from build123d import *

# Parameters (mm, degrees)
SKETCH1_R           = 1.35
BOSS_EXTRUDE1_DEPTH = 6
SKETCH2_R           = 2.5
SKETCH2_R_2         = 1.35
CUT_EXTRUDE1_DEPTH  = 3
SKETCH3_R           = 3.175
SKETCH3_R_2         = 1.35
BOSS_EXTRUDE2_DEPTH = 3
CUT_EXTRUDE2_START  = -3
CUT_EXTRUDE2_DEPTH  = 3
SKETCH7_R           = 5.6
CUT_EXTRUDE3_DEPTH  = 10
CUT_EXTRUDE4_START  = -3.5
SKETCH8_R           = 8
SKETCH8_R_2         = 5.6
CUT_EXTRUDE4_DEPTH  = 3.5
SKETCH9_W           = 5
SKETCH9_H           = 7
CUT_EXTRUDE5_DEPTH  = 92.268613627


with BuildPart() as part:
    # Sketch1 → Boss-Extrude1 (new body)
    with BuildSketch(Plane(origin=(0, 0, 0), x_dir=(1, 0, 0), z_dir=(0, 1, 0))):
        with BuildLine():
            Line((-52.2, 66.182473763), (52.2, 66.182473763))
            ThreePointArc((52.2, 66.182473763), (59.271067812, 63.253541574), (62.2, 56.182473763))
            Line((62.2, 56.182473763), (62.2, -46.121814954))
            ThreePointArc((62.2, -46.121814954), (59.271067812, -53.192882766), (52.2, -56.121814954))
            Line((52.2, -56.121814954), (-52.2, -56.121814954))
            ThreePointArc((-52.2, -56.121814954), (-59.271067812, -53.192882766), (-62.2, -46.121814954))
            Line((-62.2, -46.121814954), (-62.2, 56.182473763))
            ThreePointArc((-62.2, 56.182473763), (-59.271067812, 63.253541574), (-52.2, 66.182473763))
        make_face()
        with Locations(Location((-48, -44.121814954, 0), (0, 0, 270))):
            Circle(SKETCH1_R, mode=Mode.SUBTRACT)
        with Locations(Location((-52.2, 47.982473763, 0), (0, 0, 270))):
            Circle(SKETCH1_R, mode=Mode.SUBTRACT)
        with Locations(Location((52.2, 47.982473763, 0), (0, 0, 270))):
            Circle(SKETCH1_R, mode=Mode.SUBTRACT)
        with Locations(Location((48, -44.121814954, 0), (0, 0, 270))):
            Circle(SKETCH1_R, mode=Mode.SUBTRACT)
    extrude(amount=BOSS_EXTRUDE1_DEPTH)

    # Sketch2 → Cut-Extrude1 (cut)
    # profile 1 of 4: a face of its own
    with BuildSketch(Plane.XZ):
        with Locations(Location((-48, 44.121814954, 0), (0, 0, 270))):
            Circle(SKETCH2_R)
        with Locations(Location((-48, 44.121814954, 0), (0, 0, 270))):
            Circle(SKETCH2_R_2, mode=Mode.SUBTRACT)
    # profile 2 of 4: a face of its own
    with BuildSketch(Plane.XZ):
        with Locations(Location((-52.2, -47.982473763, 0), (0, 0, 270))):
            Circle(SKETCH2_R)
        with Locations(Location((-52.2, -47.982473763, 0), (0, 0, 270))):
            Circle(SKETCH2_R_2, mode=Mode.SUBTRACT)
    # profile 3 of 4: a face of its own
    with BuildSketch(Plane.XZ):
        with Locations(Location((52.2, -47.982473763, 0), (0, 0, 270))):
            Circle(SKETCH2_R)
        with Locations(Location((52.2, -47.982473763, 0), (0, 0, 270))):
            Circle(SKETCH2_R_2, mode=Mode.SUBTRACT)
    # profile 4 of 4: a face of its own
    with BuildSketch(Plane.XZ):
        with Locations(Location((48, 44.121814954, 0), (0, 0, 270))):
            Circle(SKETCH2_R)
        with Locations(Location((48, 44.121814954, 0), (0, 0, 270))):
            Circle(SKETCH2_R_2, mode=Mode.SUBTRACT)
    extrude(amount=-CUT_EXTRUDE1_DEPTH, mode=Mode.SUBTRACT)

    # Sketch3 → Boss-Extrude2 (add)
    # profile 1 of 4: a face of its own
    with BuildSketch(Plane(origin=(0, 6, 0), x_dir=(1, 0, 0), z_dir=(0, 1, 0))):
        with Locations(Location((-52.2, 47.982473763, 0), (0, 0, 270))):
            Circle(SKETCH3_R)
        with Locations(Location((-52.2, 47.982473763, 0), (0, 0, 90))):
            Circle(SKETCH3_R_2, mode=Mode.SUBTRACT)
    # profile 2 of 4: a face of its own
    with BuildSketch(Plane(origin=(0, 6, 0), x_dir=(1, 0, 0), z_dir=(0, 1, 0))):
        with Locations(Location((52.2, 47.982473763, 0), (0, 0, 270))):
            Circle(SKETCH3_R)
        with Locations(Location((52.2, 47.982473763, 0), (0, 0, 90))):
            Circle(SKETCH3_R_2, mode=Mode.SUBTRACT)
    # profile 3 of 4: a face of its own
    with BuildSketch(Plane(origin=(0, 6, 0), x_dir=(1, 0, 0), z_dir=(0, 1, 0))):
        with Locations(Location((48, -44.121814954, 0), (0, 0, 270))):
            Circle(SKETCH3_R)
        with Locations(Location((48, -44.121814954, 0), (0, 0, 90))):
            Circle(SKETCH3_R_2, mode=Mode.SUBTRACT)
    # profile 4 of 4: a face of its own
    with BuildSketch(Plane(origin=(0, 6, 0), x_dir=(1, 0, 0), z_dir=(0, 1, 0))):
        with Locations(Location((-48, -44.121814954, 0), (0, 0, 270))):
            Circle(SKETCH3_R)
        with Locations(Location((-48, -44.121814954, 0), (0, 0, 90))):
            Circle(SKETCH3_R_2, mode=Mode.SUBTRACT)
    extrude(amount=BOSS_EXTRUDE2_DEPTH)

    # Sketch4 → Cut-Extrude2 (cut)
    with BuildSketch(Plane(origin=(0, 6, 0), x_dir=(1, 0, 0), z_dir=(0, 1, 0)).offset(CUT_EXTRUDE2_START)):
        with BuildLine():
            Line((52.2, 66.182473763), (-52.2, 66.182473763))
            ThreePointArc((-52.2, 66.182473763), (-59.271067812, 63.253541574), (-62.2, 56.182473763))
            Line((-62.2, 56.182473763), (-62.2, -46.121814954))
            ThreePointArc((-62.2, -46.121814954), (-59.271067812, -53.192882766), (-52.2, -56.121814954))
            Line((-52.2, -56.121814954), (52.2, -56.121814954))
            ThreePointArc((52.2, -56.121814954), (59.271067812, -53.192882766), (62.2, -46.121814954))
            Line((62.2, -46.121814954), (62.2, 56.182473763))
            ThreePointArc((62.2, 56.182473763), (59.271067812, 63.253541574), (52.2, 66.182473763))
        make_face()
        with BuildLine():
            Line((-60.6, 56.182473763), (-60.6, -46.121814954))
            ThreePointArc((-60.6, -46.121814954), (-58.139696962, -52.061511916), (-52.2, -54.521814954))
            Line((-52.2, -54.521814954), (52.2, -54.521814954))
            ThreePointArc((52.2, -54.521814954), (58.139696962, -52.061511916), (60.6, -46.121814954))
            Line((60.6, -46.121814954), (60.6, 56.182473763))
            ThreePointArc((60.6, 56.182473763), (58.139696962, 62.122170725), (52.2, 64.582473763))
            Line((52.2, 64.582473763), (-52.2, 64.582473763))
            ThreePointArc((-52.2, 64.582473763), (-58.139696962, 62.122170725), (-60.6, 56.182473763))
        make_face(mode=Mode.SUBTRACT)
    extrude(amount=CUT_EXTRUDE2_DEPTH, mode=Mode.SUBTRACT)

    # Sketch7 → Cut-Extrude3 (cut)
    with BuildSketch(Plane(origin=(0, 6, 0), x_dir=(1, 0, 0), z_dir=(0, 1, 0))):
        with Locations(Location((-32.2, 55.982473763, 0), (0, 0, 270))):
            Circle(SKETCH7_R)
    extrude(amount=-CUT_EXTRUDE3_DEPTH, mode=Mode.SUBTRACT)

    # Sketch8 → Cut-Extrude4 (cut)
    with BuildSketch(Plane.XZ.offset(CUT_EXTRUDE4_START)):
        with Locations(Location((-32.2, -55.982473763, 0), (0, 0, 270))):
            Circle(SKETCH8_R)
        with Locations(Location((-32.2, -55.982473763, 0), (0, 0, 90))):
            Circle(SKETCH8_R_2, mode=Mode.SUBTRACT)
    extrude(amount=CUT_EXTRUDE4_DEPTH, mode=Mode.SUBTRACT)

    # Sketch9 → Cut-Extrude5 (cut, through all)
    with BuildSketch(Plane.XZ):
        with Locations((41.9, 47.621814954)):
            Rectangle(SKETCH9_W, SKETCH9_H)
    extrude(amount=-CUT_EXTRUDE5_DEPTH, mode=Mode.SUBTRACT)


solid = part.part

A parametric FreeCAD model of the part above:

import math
import FreeCAD as App
import Part
import Sketcher
from FreeCAD import Vector

doc = App.newDocument("Part")
params = doc.addObject("Spreadsheet::Sheet", "Params")
for row, (alias, value) in enumerate([
    ("sketch1_radius", "10 mm"),
    ("sketch1_diameter", "2.7 mm"),
    ("sketch1_width", "104.4 mm"),
    ("pad1_length", "6 mm"),
    ("sketch2_diameter", "5 mm"),
    ("sketch2_diameter2", "2.7 mm"),
    ("pocket1_length", "3 mm"),
    ("sketch3_diameter", "2.7 mm"),
    ("sketch3_diameter2", "6.35 mm"),
    ("pad2_length", "3 mm"),
    ("sketch4_radius", "10 mm"),
    ("sketch4_radius2", "8.4 mm"),
    ("sketch4_width", "104.4 mm"),
    ("pocket2_length", "3 mm"),
    ("sketch5_diameter", "11.2 mm"),
    ("pocket3_length", "10 mm"),
    ("sketch6_diameter", "16 mm"),
    ("sketch6_diameter2", "11.2 mm"),
    ("pocket4_length", "3.5 mm"),
    ("sketch7_width", "5 mm"),
    ("sketch7_height", "7 mm"),
], start=1):
    params.set(f"A{row}", alias)
    params.set(f"B{row}", "=" + value)
    params.setAlias(f"B{row}", alias)

body = doc.addObject("PartDesign::Body", "Body")

sketch1 = body.newObject("Sketcher::SketchObject", "Sketch")
sketch1.AttachmentSupport = (doc.getObject("XZ_Plane"), [""])
sketch1.MapMode = "FlatFace"
sketch1.addGeometry([
    Part.LineSegment(Vector(52.2, -66.182474, 0), Vector(-52.2, -66.182474, 0)),
    Part.ArcOfCircle(Part.Circle(Vector(-52.2, -56.182474, 0), Vector(0, 0, 1), 10), math.radians(-180), math.radians(-90)),
    Part.LineSegment(Vector(-62.2, -56.182474, 0), Vector(-62.2, 46.121815, 0)),
    Part.ArcOfCircle(Part.Circle(Vector(-52.2, 46.121815, 0), Vector(0, 0, 1), 10), math.radians(90), math.radians(180)),
    Part.LineSegment(Vector(-52.2, 56.121815, 0), Vector(52.2, 56.121815, 0)),
    Part.ArcOfCircle(Part.Circle(Vector(52.2, 46.121815, 0), Vector(0, 0, 1), 10), math.radians(0), math.radians(90)),
    Part.LineSegment(Vector(62.2, 46.121815, 0), Vector(62.2, -56.182474, 0)),
    Part.ArcOfCircle(Part.Circle(Vector(52.2, -56.182474, 0), Vector(0, 0, 1), 10), math.radians(-90), math.radians(0)),
    Part.Circle(Vector(48, 44.121815, 0), Vector(0, 0, 1), 1.35),
    Part.Circle(Vector(-48, 44.121815, 0), Vector(0, 0, 1), 1.35),
    Part.Circle(Vector(52.2, -47.982474, 0), Vector(0, 0, 1), 1.35),
    Part.Circle(Vector(-52.2, -47.982474, 0), Vector(0, 0, 1), 1.35),
], False)
sketch1.addConstraint([
    Sketcher.Constraint("Tangent", 0, 2, 1, 2),
    Sketcher.Constraint("Tangent", 1, 1, 2, 1),
    Sketcher.Constraint("Tangent", 2, 2, 3, 2),
    Sketcher.Constraint("Tangent", 3, 1, 4, 1),
    Sketcher.Constraint("Tangent", 4, 2, 5, 2),
    Sketcher.Constraint("Tangent", 5, 1, 6, 1),
    Sketcher.Constraint("Tangent", 6, 2, 7, 2),
    Sketcher.Constraint("Tangent", 7, 1, 0, 1),
    Sketcher.Constraint("Horizontal", 0),
    Sketcher.Constraint("Vertical", 2),
    Sketcher.Constraint("Horizontal", 4),
    Sketcher.Constraint("Vertical", 6),
    Sketcher.Constraint("Equal", 1, 3),
    Sketcher.Constraint("Equal", 3, 5),
    Sketcher.Constraint("Equal", 5, 7),
    Sketcher.Constraint("Equal", 8, 9),
    Sketcher.Constraint("Equal", 9, 10),
    Sketcher.Constraint("Equal", 10, 11),
    Sketcher.Constraint("Symmetric", 8, 3, 9, 3, -2),
    Sketcher.Constraint("Symmetric", 10, 3, 11, 3, -2),
    Sketcher.Constraint("Vertical", 7, 3, 10, 3),
    Sketcher.Constraint("Vertical", 3, 3, 11, 3),
    Sketcher.Constraint("Radius", 1, 10.0),
    Sketcher.Constraint("Diameter", 8, 2.7),
    Sketcher.Constraint("DistanceX", 0, 2, 0, 1, 104.4),
    Sketcher.Constraint("DistanceX", -1, 1, 8, 3, 48.0),
    Sketcher.Constraint("DistanceY", 8, 3, 5, 3, 2.0),
    Sketcher.Constraint("DistanceY", 7, 3, 10, 3, 8.2),
    Sketcher.Constraint("DistanceY", 2, 1, 2, 2, 102.304289),
    Sketcher.Constraint("DistanceY", 1, 3, -1, 1, 56.182474),
])
sketch1.setExpression("Constraints[22]", "Params.sketch1_radius")
sketch1.setExpression("Constraints[23]", "Params.sketch1_diameter")
sketch1.setExpression("Constraints[24]", "Params.sketch1_width")
pad1 = body.newObject("PartDesign::Pad", "Pad")
pad1.Profile = sketch1
pad1.setExpression("Length", "Params.pad1_length")
pad1.Reversed = True

sketch2 = body.newObject("Sketcher::SketchObject", "Sketch001")
sketch2.AttachmentSupport = (doc.getObject("XZ_Plane"), [""])
sketch2.MapMode = "FlatFace"
sketch2.addGeometry([
    Part.Circle(Vector(-48, 44.121815, 0), Vector(0, 0, 1), 2.5),
    Part.Circle(Vector(-48, 44.121815, 0), Vector(0, 0, 1), 1.35),
    Part.Circle(Vector(-52.2, -47.982474, 0), Vector(0, 0, 1), 2.5),
    Part.Circle(Vector(-52.2, -47.982474, 0), Vector(0, 0, 1), 1.35),
    Part.Circle(Vector(52.2, -47.982474, 0), Vector(0, 0, 1), 2.5),
    Part.Circle(Vector(52.2, -47.982474, 0), Vector(0, 0, 1), 1.35),
    Part.Circle(Vector(48, 44.121815, 0), Vector(0, 0, 1), 2.5),
    Part.Circle(Vector(48, 44.121815, 0), Vector(0, 0, 1), 1.35),
], False)
sketch2.addConstraint([
    Sketcher.Constraint("Coincident", 1, 3, 0, 3),
    Sketcher.Constraint("Coincident", 3, 3, 2, 3),
    Sketcher.Constraint("Coincident", 5, 3, 4, 3),
    Sketcher.Constraint("Coincident", 7, 3, 6, 3),
    Sketcher.Constraint("Equal", 0, 2),
    Sketcher.Constraint("Equal", 1, 3),
    Sketcher.Constraint("Equal", 2, 4),
    Sketcher.Constraint("Equal", 3, 5),
    Sketcher.Constraint("Equal", 4, 6),
    Sketcher.Constraint("Equal", 5, 7),
    Sketcher.Constraint("Symmetric", 2, 3, 4, 3, -2),
    Sketcher.Constraint("Symmetric", 0, 3, 6, 3, -2),
    Sketcher.Constraint("Diameter", 0, 5.0),
    Sketcher.Constraint("Diameter", 1, 2.7),
    Sketcher.Constraint("DistanceX", 0, 3, -1, 1, 48.0),
    Sketcher.Constraint("DistanceX", 2, 3, -1, 1, 52.2),
    Sketcher.Constraint("DistanceY", 2, 3, 0, 3, 92.104289),
    Sketcher.Constraint("DistanceY", -1, 1, 0, 3, 44.121815),
])
sketch2.setExpression("Constraints[12]", "Params.sketch2_diameter")
sketch2.setExpression("Constraints[13]", "Params.sketch2_diameter2")
pocket1 = body.newObject("PartDesign::Pocket", "Pocket")
pocket1.Profile = sketch2
pocket1.setExpression("Length", "Params.pocket1_length")

sketch3 = body.newObject("Sketcher::SketchObject", "Sketch002")
sketch3.AttachmentSupport = (doc.getObject("XZ_Plane"), [""])
sketch3.MapMode = "FlatFace"
sketch3.AttachmentOffset = App.Placement(Vector(0, 0, -6), App.Rotation())
sketch3.addGeometry([
    Part.Circle(Vector(-52.2, -47.982474, 0), Vector(0, 0, 1), 3.175),
    Part.Circle(Vector(-52.2, -47.982474, 0), Vector(0, 0, 1), 1.35),
    Part.Circle(Vector(52.2, -47.982474, 0), Vector(0, 0, 1), 3.175),
    Part.Circle(Vector(52.2, -47.982474, 0), Vector(0, 0, 1), 1.35),
    Part.Circle(Vector(48, 44.121815, 0), Vector(0, 0, 1), 3.175),
    Part.Circle(Vector(48, 44.121815, 0), Vector(0, 0, 1), 1.35),
    Part.Circle(Vector(-48, 44.121815, 0), Vector(0, 0, 1), 3.175),
    Part.Circle(Vector(-48, 44.121815, 0), Vector(0, 0, 1), 1.35),
], False)
sketch3.addConstraint([
    Sketcher.Constraint("Coincident", 1, 3, 0, 3),
    Sketcher.Constraint("Coincident", 3, 3, 2, 3),
    Sketcher.Constraint("Coincident", 5, 3, 4, 3),
    Sketcher.Constraint("Coincident", 7, 3, 6, 3),
    Sketcher.Constraint("Equal", 0, 2),
    Sketcher.Constraint("Equal", 1, 3),
    Sketcher.Constraint("Equal", 2, 4),
    Sketcher.Constraint("Equal", 3, 5),
    Sketcher.Constraint("Equal", 4, 6),
    Sketcher.Constraint("Equal", 5, 7),
    Sketcher.Constraint("Symmetric", 0, 3, 2, 3, -2),
    Sketcher.Constraint("Symmetric", 4, 3, 6, 3, -2),
    Sketcher.Constraint("Diameter", 1, 2.7),
    Sketcher.Constraint("Diameter", 0, 6.35),
    Sketcher.Constraint("DistanceX", -1, 1, 4, 3, 48.0),
    Sketcher.Constraint("DistanceX", 0, 3, -1, 1, 52.2),
    Sketcher.Constraint("DistanceY", 2, 3, 4, 3, 92.104289),
    Sketcher.Constraint("DistanceY", 0, 3, -1, 1, 47.982474),
])
sketch3.setExpression("Constraints[12]", "Params.sketch3_diameter")
sketch3.setExpression("Constraints[13]", "Params.sketch3_diameter2")
pad2 = body.newObject("PartDesign::Pad", "Pad001")
pad2.Profile = sketch3
pad2.setExpression("Length", "Params.pad2_length")
pad2.Reversed = True

sketch4 = body.newObject("Sketcher::SketchObject", "Sketch003")
sketch4.AttachmentSupport = (doc.getObject("XZ_Plane"), [""])
sketch4.MapMode = "FlatFace"
sketch4.AttachmentOffset = App.Placement(Vector(0, 0, -3), App.Rotation())
sketch4.addGeometry([
    Part.LineSegment(Vector(52.2, -66.182474, 0), Vector(-52.2, -66.182474, 0)),
    Part.ArcOfCircle(Part.Circle(Vector(-52.2, -56.182474, 0), Vector(0, 0, 1), 10), math.radians(-180), math.radians(-90)),
    Part.LineSegment(Vector(-62.2, -56.182474, 0), Vector(-62.2, 46.121815, 0)),
    Part.ArcOfCircle(Part.Circle(Vector(-52.2, 46.121815, 0), Vector(0, 0, 1), 10), math.radians(90), math.radians(180)),
    Part.LineSegment(Vector(-52.2, 56.121815, 0), Vector(52.2, 56.121815, 0)),
    Part.ArcOfCircle(Part.Circle(Vector(52.2, 46.121815, 0), Vector(0, 0, 1), 10), math.radians(0), math.radians(90)),
    Part.LineSegment(Vector(62.2, 46.121815, 0), Vector(62.2, -56.182474, 0)),
    Part.ArcOfCircle(Part.Circle(Vector(52.2, -56.182474, 0), Vector(0, 0, 1), 10), math.radians(-90), math.radians(0)),
    Part.LineSegment(Vector(-60.6, 46.121815, 0), Vector(-60.6, -56.182474, 0)),
    Part.ArcOfCircle(Part.Circle(Vector(-52.2, -56.182474, 0), Vector(0, 0, 1), 8.4), math.radians(180), math.radians(270)),
    Part.LineSegment(Vector(-52.2, -64.582474, 0), Vector(52.2, -64.582474, 0)),
    Part.ArcOfCircle(Part.Circle(Vector(52.2, -56.182474, 0), Vector(0, 0, 1), 8.4), math.radians(-90), math.radians(0)),
    Part.LineSegment(Vector(60.6, -56.182474, 0), Vector(60.6, 46.121815, 0)),
    Part.ArcOfCircle(Part.Circle(Vector(52.2, 46.121815, 0), Vector(0, 0, 1), 8.4), math.radians(0), math.radians(90)),
    Part.LineSegment(Vector(52.2, 54.521815, 0), Vector(-52.2, 54.521815, 0)),
    Part.ArcOfCircle(Part.Circle(Vector(-52.2, 46.121815, 0), Vector(0, 0, 1), 8.4), math.radians(90), math.radians(180)),
], False)
sketch4.addConstraint([
    Sketcher.Constraint("Tangent", 0, 2, 1, 2),
    Sketcher.Constraint("Tangent", 1, 1, 2, 1),
    Sketcher.Constraint("Tangent", 2, 2, 3, 2),
    Sketcher.Constraint("Tangent", 3, 1, 4, 1),
    Sketcher.Constraint("Tangent", 4, 2, 5, 2),
    Sketcher.Constraint("Tangent", 5, 1, 6, 1),
    Sketcher.Constraint("Tangent", 6, 2, 7, 2),
    Sketcher.Constraint("Tangent", 7, 1, 0, 1),
    Sketcher.Constraint("Tangent", 8, 2, 9, 1),
    Sketcher.Constraint("Tangent", 9, 2, 10, 1),
    Sketcher.Constraint("Tangent", 10, 2, 11, 1),
    Sketcher.Constraint("Tangent", 11, 2, 12, 1),
    Sketcher.Constraint("Tangent", 12, 2, 13, 1),
    Sketcher.Constraint("Tangent", 13, 2, 14, 1),
    Sketcher.Constraint("Tangent", 14, 2, 15, 1),
    Sketcher.Constraint("Tangent", 15, 2, 8, 1),
    Sketcher.Constraint("Horizontal", 0),
    Sketcher.Constraint("Vertical", 2),
    Sketcher.Constraint("Horizontal", 4),
    Sketcher.Constraint("Vertical", 6),
    Sketcher.Constraint("Vertical", 8),
    Sketcher.Constraint("Horizontal", 10),
    Sketcher.Constraint("Vertical", 12),
    Sketcher.Constraint("Horizontal", 14),
    Sketcher.Constraint("Coincident", 9, 3, 1, 3),
    Sketcher.Constraint("Coincident", 11, 3, 7, 3),
    Sketcher.Constraint("Coincident", 13, 3, 5, 3),
    Sketcher.Constraint("Equal", 1, 3),
    Sketcher.Constraint("Equal", 3, 5),
    Sketcher.Constraint("Equal", 5, 7),
    Sketcher.Constraint("Equal", 13, 15),
    Sketcher.Constraint("Radius", 1, 10.0),
    Sketcher.Constraint("Radius", 9, 8.4),
    Sketcher.Constraint("DistanceX", 0, 2, 0, 1, 104.4),
    Sketcher.Constraint("DistanceX", 1, 3, -1, 1, 52.2),
    Sketcher.Constraint("DistanceY", 2, 1, 2, 2, 102.304289),
    Sketcher.Constraint("DistanceY", 1, 3, -1, 1, 56.182474),
])
sketch4.setExpression("Constraints[31]", "Params.sketch4_radius")
sketch4.setExpression("Constraints[32]", "Params.sketch4_radius2")
sketch4.setExpression("Constraints[33]", "Params.sketch4_width")
pocket2 = body.newObject("PartDesign::Pocket", "Pocket001")
pocket2.Profile = sketch4
pocket2.setExpression("Length", "Params.pocket2_length")

sketch5 = body.newObject("Sketcher::SketchObject", "Sketch004")
sketch5.AttachmentSupport = (doc.getObject("XZ_Plane"), [""])
sketch5.MapMode = "FlatFace"
sketch5.AttachmentOffset = App.Placement(Vector(0, 0, -6), App.Rotation())
sketch5.addGeometry(Part.Circle(Vector(-32.2, -55.982474, 0), Vector(0, 0, 1), 5.6), False)
sketch5.addConstraint([
    Sketcher.Constraint("Diameter", 0, 11.2),
    Sketcher.Constraint("DistanceX", 0, 3, -1, 1, 32.2),
    Sketcher.Constraint("DistanceY", 0, 3, -1, 1, 55.982474),
])
sketch5.setExpression("Constraints[0]", "Params.sketch5_diameter")
pocket3 = body.newObject("PartDesign::Pocket", "Pocket002")
pocket3.Profile = sketch5
pocket3.setExpression("Length", "Params.pocket3_length")
pocket3.Reversed = True

sketch6 = body.newObject("Sketcher::SketchObject", "Sketch005")
sketch6.AttachmentSupport = (doc.getObject("XZ_Plane"), [""])
sketch6.MapMode = "FlatFace"
sketch6.AttachmentOffset = App.Placement(Vector(0, 0, -3.5), App.Rotation())
sketch6.addGeometry([
    Part.Circle(Vector(-32.2, -55.982474, 0), Vector(0, 0, 1), 8),
    Part.Circle(Vector(-32.2, -55.982474, 0), Vector(0, 0, 1), 5.6),
], False)
sketch6.addConstraint([
    Sketcher.Constraint("Coincident", 1, 3, 0, 3),
    Sketcher.Constraint("Diameter", 0, 16.0),
    Sketcher.Constraint("Diameter", 1, 11.2),
    Sketcher.Constraint("DistanceX", 0, 3, -1, 1, 32.2),
    Sketcher.Constraint("DistanceY", 0, 3, -1, 1, 55.982474),
])
sketch6.setExpression("Constraints[1]", "Params.sketch6_diameter")
sketch6.setExpression("Constraints[2]", "Params.sketch6_diameter2")
pocket4 = body.newObject("PartDesign::Pocket", "Pocket003")
pocket4.Profile = sketch6
pocket4.setExpression("Length", "Params.pocket4_length")
pocket4.Reversed = True

sketch7 = body.newObject("Sketcher::SketchObject", "Sketch006")
sketch7.AttachmentSupport = (doc.getObject("XZ_Plane"), [""])
sketch7.MapMode = "FlatFace"
sketch7.addGeometry([
    Part.LineSegment(Vector(39.4, 51.121815, 0), Vector(39.4, 44.121815, 0)),
    Part.LineSegment(Vector(39.4, 44.121815, 0), Vector(44.4, 44.121815, 0)),
    Part.LineSegment(Vector(44.4, 44.121815, 0), Vector(44.4, 51.121815, 0)),
    Part.LineSegment(Vector(44.4, 51.121815, 0), Vector(39.4, 51.121815, 0)),
], False)
sketch7.addConstraint([
    Sketcher.Constraint("Coincident", 0, 2, 1, 1),
    Sketcher.Constraint("Coincident", 1, 2, 2, 1),
    Sketcher.Constraint("Coincident", 2, 2, 3, 1),
    Sketcher.Constraint("Coincident", 3, 2, 0, 1),
    Sketcher.Constraint("Vertical", 0),
    Sketcher.Constraint("Horizontal", 1),
    Sketcher.Constraint("Vertical", 2),
    Sketcher.Constraint("Horizontal", 3),
    Sketcher.Constraint("DistanceX", 1, 1, 1, 2, 5.0),
    Sketcher.Constraint("DistanceY", 0, 2, 0, 1, 7.0),
    Sketcher.Constraint("DistanceX", -1, 1, 0, 2, 39.4),
    Sketcher.Constraint("DistanceY", -1, 1, 0, 2, 44.121815),
])
sketch7.setExpression("Constraints[8]", "Params.sketch7_width")
sketch7.setExpression("Constraints[9]", "Params.sketch7_height")
pocket5 = body.newObject("PartDesign::Pocket", "Pocket004")
pocket5.Profile = sketch7
pocket5.Type = "ThroughAll"

doc.recompute()
